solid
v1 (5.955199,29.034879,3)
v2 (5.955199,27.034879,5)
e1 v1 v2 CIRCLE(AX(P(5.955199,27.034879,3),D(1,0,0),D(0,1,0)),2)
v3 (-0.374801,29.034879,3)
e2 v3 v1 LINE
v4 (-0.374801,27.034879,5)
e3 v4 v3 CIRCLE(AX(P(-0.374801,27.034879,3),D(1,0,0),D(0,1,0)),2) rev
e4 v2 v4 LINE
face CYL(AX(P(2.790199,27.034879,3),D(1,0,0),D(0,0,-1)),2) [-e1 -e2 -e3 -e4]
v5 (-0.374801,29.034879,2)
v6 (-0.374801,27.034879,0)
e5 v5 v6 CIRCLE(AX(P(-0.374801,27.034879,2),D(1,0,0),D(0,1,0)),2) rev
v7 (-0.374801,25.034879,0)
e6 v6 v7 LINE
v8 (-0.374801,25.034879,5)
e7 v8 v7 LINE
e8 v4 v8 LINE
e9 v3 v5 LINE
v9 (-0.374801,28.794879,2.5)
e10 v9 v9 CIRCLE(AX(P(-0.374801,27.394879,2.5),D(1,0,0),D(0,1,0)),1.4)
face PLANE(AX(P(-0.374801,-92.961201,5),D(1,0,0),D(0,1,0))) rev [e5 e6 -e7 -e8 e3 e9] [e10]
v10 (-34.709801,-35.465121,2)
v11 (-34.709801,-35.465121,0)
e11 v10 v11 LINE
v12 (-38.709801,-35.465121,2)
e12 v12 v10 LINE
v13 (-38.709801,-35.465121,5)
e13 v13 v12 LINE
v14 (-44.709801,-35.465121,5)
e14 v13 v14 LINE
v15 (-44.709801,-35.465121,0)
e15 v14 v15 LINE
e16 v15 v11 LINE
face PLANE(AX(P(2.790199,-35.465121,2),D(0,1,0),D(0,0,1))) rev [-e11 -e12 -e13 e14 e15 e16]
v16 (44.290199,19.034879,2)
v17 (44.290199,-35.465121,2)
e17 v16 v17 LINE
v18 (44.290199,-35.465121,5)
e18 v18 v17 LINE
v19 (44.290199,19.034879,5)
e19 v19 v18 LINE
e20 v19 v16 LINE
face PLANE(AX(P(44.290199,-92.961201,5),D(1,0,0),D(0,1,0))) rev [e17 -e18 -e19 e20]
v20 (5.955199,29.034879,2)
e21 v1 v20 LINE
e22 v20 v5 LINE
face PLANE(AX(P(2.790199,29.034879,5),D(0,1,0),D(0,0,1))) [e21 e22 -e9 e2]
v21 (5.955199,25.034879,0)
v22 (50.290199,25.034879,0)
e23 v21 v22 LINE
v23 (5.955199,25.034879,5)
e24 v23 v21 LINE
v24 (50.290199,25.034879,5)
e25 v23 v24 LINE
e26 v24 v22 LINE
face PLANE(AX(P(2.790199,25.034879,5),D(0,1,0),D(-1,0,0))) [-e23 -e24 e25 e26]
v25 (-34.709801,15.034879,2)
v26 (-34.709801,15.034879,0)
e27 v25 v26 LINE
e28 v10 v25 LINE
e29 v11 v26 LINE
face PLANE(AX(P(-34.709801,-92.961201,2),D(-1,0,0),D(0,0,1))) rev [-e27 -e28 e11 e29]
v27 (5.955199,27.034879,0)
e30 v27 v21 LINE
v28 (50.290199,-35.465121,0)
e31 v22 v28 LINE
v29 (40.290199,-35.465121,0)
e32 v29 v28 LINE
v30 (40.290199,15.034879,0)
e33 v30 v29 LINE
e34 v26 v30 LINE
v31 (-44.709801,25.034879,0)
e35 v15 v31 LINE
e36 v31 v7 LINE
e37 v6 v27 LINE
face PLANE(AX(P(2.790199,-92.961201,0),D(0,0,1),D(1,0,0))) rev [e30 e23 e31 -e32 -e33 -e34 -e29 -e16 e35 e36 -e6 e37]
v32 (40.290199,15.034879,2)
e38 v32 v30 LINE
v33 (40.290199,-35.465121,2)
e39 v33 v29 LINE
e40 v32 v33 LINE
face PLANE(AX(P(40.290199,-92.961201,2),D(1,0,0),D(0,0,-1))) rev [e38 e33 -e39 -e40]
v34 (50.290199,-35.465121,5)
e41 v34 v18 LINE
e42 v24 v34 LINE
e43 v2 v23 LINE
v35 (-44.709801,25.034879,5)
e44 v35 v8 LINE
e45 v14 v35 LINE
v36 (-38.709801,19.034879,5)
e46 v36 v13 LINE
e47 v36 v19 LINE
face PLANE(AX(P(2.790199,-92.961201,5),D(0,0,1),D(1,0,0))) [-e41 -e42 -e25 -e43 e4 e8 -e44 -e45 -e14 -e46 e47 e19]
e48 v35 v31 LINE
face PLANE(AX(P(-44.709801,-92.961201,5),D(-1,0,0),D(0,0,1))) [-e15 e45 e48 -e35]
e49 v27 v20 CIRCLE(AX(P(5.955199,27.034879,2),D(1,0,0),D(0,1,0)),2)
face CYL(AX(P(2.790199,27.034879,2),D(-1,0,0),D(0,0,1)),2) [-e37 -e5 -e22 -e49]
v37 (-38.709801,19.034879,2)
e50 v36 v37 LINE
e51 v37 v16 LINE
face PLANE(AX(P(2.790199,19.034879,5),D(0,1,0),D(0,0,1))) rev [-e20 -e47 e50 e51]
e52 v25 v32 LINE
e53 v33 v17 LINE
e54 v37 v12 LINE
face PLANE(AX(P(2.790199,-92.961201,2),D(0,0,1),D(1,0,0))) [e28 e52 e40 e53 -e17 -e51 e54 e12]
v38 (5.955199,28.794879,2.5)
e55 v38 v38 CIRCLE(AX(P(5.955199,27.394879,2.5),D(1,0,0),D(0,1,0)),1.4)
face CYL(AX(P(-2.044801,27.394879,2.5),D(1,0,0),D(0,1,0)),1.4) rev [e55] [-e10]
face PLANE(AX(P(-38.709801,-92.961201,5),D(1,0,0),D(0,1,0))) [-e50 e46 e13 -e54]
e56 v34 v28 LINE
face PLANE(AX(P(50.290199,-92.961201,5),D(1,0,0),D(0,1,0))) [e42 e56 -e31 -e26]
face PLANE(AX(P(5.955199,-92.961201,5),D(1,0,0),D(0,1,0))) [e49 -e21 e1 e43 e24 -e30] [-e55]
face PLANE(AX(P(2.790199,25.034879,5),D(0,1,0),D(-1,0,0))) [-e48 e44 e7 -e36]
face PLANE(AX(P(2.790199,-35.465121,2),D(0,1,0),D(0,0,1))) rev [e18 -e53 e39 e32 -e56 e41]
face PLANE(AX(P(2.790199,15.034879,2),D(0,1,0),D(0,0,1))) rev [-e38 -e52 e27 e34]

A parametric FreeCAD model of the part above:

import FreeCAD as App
import Part
import Sketcher
Q = App.Units.Quantity


def edges_at(feature, points):
    """Names of the edges that pass closest to the given points."""
    edges = feature.Shape.Edges
    near = lambda p: min(range(len(edges)), key=lambda i: edges[i].distToShape(Part.Vertex(*p))[0])
    return sorted({f"Edge{near(p) + 1}" for p in points})


def add_polygon(sketch, points):
    """Adds a closed chain of lines whose ends are joined by coincident constraints."""
    first, n = sketch.GeometryCount, len(points)
    for a, b in zip(points, points[1:] + points[:1]):
        sketch.addGeometry(Part.LineSegment(App.Vector(*a, 0), App.Vector(*b, 0)), False)
    for i in range(n):
        sketch.addConstraint(Sketcher.Constraint("Coincident", first + i, 2, first + (i + 1) % n, 1))

doc = App.newDocument("Part")
body = doc.addObject("PartDesign::Body", "Body")

# Sketch on XY plane
sketch1 = doc.addObject("Sketcher::SketchObject", "Sketch")
body.addObject(sketch1)
sketch1.AttachmentSupport = (doc.XY_Plane, [""])
sketch1.MapMode = "FlatFace"
add_polygon(sketch1, [(40.3, 15), (40.3, -35.5), (44.3, -35.5), (44.3, 19), (-38.7, 19), (-38.7, -35.5), (-34.7, -35.5), (-34.7, 15)])  # lines 0-7
sketch1.addConstraint([
    Sketcher.Constraint("Vertical", 0),
    Sketcher.Constraint("Horizontal", 1),
    Sketcher.Constraint("Vertical", 2),
    Sketcher.Constraint("Horizontal", 3),
    Sketcher.Constraint("Vertical", 4),
    Sketcher.Constraint("Horizontal", 5),
    Sketcher.Constraint("Vertical", 6),
    Sketcher.Constraint("Horizontal", 7),
    Sketcher.Constraint("Horizontal", 1, 2, 4, 2),
    Sketcher.Constraint("Equal", 1, 5),
    Sketcher.Constraint("DistanceX", 1, 1, 1, 2, Q("4 mm")),
    Sketcher.Constraint("DistanceX", 3, 2, 3, 1, Q("83 mm")),
    Sketcher.Constraint("DistanceY", 0, 2, 0, 1, Q("50.5 mm")),
    Sketcher.Constraint("DistanceY", 2, 1, 2, 2, Q("54.5 mm")),
    Sketcher.Constraint("DistanceX", -1, 1, 0, 2, Q("40.290199 mm")),
    Sketcher.Constraint("DistanceY", 0, 2, -1, 1, Q("35.465121 mm")),
])
pad1 = doc.addObject("PartDesign::Pad", "Pad")
body.addObject(pad1)
pad1.Profile = sketch1
pad1.Length = 2

# Sketch on XY plane
sketch2 = doc.addObject("Sketcher::SketchObject", "Sketch001")
body.addObject(sketch2)
sketch2.AttachmentSupport = (doc.XY_Plane, [""])
sketch2.MapMode = "FlatFace"
add_polygon(sketch2, [(-44.7, -35.5), (-38.7, -35.5), (-38.7, 19), (44.3, 19), (44.3, -35.5), (50.3, -35.5), (50.3, 25), (6, 25), (6, 29), (-0.4, 29), (-0.4, 25), (-44.7, 25)])  # lines 0-11
sketch2.addConstraint([
    Sketcher.Constraint("Horizontal", 0),
    Sketcher.Constraint("Vertical", 1),
    Sketcher.Constraint("Horizontal", 2),
    Sketcher.Constraint("Vertical", 3),
    Sketcher.Constraint("Horizontal", 4),
    Sketcher.Constraint("Vertical", 5),
    Sketcher.Constraint("Horizontal", 6),
    Sketcher.Constraint("Vertical", 7),
    Sketcher.Constraint("Horizontal", 8),
    Sketcher.Constraint("Vertical", 9),
    Sketcher.Constraint("Horizontal", 10),
    Sketcher.Constraint("Vertical", 11),
    Sketcher.Constraint("Horizontal", 0, 2, 3, 2),
    Sketcher.Constraint("Horizontal", 6, 2, 9, 2),
    Sketcher.Constraint("Equal", 0, 4),
    Sketcher.Constraint("Equal", 6, 10),
    Sketcher.Constraint("DistanceX", 0, 1, 0, 2, Q("6 mm")),
    Sketcher.Constraint("DistanceX", 2, 1, 2, 2, Q("83 mm")),
    Sketcher.Constraint("DistanceY", 7, 1, 7, 2, Q("4 mm")),
    Sketcher.Constraint("DistanceY", 1, 1, 1, 2, Q("54.5 mm")),
    Sketcher.Constraint("DistanceY", 5, 1, 5, 2, Q("60.5 mm")),
    Sketcher.Constraint("DistanceX", 8, 2, 8, 1, Q("6.33 mm")),
    Sketcher.Constraint("DistanceX", 0, 2, -1, 1, Q("38.709801 mm")),
    Sketcher.Constraint("DistanceY", 0, 2, -1, 1, Q("35.465121 mm")),
])
pad2 = doc.addObject("PartDesign::Pad", "Pad001")
body.addObject(pad2)
pad2.Profile = sketch2
pad2.Length = 5

# Sketch on YZ plane
sketch3 = doc.addObject("Sketcher::SketchObject", "Sketch002")
body.addObject(sketch3)
sketch3.AttachmentSupport = (doc.YZ_Plane, [""])
sketch3.MapMode = "FlatFace"
sketch3.AttachmentOffset = App.Placement(App.Vector(0, 0, 5.955199), App.Rotation())
sketch3.addGeometry(Part.Circle(App.Vector(27.4, 2.5, 0), App.Vector(0, 0, 1), 1.4), False)
sketch3.addConstraint([
    Sketcher.Constraint("Diameter", 0, Q("2.8 mm")),
    Sketcher.Constraint("DistanceY", -1, 1, 0, 3, Q("2.5 mm")),
    Sketcher.Constraint("DistanceX", -1, 1, 0, 3, Q("27.394879 mm")),
])
pocket1 = doc.addObject("PartDesign::Pocket", "Pocket")
body.addObject(pocket1)
pocket1.Profile = sketch3
pocket1.Length = 8
doc.recompute()

fillet = doc.addObject("PartDesign::Fillet", "Fillet")
body.addObject(fillet)
fillet.Base = (pocket1, edges_at(pocket1, [(2.79, 29.035, 5), (2.79, 29.035, 0)]))
fillet.Radius = 2

doc.recompute()
